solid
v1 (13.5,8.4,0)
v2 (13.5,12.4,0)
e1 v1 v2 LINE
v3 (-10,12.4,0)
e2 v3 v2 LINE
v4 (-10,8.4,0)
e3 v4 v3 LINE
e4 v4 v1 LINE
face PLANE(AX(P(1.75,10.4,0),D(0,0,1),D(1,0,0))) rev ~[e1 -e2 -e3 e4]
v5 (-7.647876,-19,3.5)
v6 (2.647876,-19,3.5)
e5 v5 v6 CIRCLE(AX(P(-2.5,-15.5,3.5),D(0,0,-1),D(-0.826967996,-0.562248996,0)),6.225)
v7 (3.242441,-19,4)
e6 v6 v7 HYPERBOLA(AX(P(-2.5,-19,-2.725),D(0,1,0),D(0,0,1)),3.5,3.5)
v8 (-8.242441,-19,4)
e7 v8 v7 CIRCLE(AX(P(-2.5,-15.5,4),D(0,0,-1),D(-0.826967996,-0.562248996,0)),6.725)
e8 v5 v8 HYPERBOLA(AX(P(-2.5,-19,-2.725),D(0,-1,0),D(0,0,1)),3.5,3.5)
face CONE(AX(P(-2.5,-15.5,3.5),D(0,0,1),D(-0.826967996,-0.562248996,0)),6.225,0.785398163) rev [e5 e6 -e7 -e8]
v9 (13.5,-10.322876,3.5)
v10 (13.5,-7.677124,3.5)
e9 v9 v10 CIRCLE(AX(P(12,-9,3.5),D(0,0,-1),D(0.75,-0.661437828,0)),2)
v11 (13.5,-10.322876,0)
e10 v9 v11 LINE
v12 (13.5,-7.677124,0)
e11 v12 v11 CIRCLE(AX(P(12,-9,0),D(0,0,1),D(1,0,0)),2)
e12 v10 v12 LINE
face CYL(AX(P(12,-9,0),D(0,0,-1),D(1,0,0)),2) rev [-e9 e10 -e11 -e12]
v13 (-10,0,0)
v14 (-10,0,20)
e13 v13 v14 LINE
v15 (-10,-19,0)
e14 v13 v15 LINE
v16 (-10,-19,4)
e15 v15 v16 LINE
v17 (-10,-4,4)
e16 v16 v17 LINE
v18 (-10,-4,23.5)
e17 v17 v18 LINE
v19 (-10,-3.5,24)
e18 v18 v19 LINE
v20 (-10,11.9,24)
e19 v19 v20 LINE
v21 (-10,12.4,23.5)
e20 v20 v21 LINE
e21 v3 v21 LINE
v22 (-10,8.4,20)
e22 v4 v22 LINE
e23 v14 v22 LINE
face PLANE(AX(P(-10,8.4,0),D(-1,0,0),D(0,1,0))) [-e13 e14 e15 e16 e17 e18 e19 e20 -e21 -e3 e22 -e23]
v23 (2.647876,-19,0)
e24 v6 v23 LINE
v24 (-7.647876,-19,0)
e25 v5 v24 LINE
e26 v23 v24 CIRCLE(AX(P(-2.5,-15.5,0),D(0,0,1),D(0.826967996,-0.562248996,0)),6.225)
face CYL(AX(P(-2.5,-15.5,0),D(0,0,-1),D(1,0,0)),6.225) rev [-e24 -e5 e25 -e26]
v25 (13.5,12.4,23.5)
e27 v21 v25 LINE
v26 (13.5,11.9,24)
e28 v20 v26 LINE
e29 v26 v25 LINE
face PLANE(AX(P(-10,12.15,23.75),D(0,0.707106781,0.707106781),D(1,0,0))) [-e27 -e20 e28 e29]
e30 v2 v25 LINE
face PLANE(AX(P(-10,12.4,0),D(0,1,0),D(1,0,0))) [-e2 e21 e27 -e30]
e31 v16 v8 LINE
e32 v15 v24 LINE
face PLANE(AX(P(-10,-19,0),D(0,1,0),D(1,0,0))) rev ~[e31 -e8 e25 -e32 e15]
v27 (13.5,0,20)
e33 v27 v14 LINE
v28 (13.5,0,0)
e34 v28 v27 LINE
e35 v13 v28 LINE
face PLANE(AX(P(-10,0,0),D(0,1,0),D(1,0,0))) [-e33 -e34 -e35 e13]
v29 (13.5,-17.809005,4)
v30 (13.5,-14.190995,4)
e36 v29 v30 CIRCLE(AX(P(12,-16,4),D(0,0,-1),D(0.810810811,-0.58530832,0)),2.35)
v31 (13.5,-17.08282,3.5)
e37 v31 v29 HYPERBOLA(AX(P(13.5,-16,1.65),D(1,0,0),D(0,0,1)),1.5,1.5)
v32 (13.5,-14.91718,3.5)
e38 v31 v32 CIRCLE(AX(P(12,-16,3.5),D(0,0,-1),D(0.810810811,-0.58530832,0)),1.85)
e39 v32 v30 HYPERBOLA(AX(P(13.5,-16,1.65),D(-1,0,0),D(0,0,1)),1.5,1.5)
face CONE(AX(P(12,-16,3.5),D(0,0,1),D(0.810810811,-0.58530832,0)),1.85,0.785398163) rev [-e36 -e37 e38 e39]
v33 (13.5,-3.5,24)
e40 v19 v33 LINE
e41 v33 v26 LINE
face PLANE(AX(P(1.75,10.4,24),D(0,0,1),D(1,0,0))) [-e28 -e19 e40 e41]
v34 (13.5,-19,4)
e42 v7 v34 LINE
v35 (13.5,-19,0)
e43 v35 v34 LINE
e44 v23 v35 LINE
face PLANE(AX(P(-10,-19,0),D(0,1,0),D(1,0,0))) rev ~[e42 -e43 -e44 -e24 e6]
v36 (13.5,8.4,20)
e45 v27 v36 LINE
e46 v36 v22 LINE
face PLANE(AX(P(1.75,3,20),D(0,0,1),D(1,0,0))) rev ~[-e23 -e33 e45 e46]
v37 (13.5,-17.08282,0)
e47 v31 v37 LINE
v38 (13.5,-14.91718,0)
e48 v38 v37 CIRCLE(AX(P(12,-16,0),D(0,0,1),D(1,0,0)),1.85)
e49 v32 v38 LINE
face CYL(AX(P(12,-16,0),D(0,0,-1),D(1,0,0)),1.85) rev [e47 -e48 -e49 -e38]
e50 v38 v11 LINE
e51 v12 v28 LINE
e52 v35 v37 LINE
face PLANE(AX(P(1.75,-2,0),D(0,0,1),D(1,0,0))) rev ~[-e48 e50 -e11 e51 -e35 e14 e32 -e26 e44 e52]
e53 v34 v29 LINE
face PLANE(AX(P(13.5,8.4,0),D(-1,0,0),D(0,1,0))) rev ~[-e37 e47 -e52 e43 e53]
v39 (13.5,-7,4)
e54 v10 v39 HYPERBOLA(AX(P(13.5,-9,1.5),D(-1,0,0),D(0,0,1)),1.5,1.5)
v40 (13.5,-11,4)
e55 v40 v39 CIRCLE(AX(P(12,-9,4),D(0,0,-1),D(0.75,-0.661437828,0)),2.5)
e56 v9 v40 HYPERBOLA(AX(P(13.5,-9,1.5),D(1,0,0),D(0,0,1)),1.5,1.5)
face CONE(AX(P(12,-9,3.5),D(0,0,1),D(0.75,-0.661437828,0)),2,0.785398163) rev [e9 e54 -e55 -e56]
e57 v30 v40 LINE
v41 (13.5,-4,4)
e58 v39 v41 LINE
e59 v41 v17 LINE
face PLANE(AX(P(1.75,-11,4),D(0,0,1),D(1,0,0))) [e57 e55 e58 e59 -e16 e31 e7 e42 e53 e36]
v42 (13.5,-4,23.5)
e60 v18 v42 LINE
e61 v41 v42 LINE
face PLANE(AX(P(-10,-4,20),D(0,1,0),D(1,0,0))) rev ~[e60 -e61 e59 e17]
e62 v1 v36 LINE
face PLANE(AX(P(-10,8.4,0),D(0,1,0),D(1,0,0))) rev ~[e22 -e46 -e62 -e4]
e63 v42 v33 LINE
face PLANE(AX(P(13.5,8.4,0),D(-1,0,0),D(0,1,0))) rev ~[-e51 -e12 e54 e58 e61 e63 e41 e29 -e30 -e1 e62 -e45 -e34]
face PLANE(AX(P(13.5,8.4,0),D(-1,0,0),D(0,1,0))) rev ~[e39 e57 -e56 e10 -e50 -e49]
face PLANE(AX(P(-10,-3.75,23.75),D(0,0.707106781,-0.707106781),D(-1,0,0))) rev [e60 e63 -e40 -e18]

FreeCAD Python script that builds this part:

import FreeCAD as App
import Part
import Sketcher

V = App.Vector
Q = App.Units.Quantity


def edges_at(feature, points):
    """Names of the edges that pass closest to the given points."""
    edges = feature.Shape.Edges
    near = lambda p: min(range(len(edges)), key=lambda i: edges[i].distToShape(Part.Vertex(*p))[0])
    return sorted({f"Edge{near(p) + 1}" for p in points})


def add_polygon(sketch, points):
    """Adds a closed chain of lines whose ends are joined by coincident constraints."""
    first, n = sketch.GeometryCount, len(points)
    for a, b in zip(points, points[1:] + points[:1]):
        sketch.addGeometry(Part.LineSegment(App.Vector(*a, 0), App.Vector(*b, 0)), False)
    for i in range(n):
        sketch.addConstraint(Sketcher.Constraint("Coincident", first + i, 2, first + (i + 1) % n, 1))

doc = App.newDocument("Part")
body = doc.addObject("PartDesign::Body", "Body")

sketch1 = body.newObject("Sketcher::SketchObject", "Sketch")
sketch1.AttachmentSupport = (doc.getObject("XY_Plane"), [""])
sketch1.MapMode = "FlatFace"
add_polygon(sketch1, [(-10, 8), (-10, 0), (21, 0), (21, 8)])
sketch1.addConstraint([
    Sketcher.Constraint("Vertical", 0),
    Sketcher.Constraint("Horizontal", 1),
    Sketcher.Constraint("Vertical", 2),
    Sketcher.Constraint("Horizontal", 3),
    Sketcher.Constraint("PointOnObject", 0, 2, -1),
    Sketcher.Constraint("DistanceX", 1, 1, 1, 2, Q("31 mm")),
    Sketcher.Constraint("DistanceY", 0, 2, 0, 1, Q("8.4 mm")),
    Sketcher.Constraint("DistanceX", 0, 2, -1, 1, Q("10 mm")),
])
pad1 = body.newObject("PartDesign::Pad", "Pad")
pad1.Profile = sketch1
pad1.Length = 20
body2 = doc.addObject("PartDesign::Body", "Body001")

sketch2 = body2.newObject("Sketcher::SketchObject", "Sketch001")
sketch2.AttachmentSupport = (doc.getObject("XY_Plane001"), [""])
sketch2.MapMode = "FlatFace"
sketch2.addGeometry(Part.Circle(V(-2, -16, 0), V(0, 0, 1), 6), False)
sketch2.addConstraint([
    Sketcher.Constraint("Diameter", 0, Q("12.45 mm")),
    Sketcher.Constraint("DistanceX", 0, 3, -1, 1, Q("2.5 mm")),
    Sketcher.Constraint("DistanceY", 0, 3, -1, 1, Q("15.5 mm")),
])
pad2 = body2.newObject("PartDesign::Pad", "Pad001")
pad2.Profile = sketch2
pad2.Length = 10
body3 = doc.addObject("PartDesign::Body", "Body002")

sketch3 = body3.newObject("Sketcher::SketchObject", "Sketch002")
sketch3.AttachmentSupport = (doc.getObject("XY_Plane002"), [""])
sketch3.MapMode = "FlatFace"
sketch3.addGeometry(Part.Circle(V(12, -9, 0), V(0, 0, 1), 2), False)
sketch3.addConstraint([
    Sketcher.Constraint("Diameter", 0, Q("4 mm")),
    Sketcher.Constraint("DistanceX", -1, 1, 0, 3, Q("12 mm")),
    Sketcher.Constraint("DistanceY", 0, 3, -1, 1, Q("9 mm")),
])
pad3 = body3.newObject("PartDesign::Pad", "Pad002")
pad3.Profile = sketch3
pad3.Length = 10
body4 = doc.addObject("PartDesign::Body", "Body003")

sketch4 = body4.newObject("Sketcher::SketchObject", "Sketch003")
sketch4.AttachmentSupport = (doc.getObject("XY_Plane003"), [""])
sketch4.MapMode = "FlatFace"
sketch4.addGeometry(Part.Circle(V(12, -16, 0), V(0, 0, 1), 1.9), False)
sketch4.addConstraint([
    Sketcher.Constraint("Diameter", 0, Q("3.7 mm")),
    Sketcher.Constraint("DistanceX", -1, 1, 0, 3, Q("12 mm")),
    Sketcher.Constraint("DistanceY", 0, 3, -1, 1, Q("16 mm")),
])
pad4 = body4.newObject("PartDesign::Pad", "Pad003")
pad4.Profile = sketch4
pad4.Length = 10
body5 = doc.addObject("PartDesign::Body", "Body004")

sketch5 = body5.newObject("Sketcher::SketchObject", "Sketch004")
sketch5.AttachmentSupport = (doc.getObject("XY_Plane004"), [""])
sketch5.MapMode = "FlatFace"
add_polygon(sketch5, [(-10, 12.4), (-10, 8.4), (13.5, 8.4), (13.5, 12.4)])
sketch5.addConstraint([
    Sketcher.Constraint("Vertical", 0),
    Sketcher.Constraint("Horizontal", 1),
    Sketcher.Constraint("Vertical", 2),
    Sketcher.Constraint("Horizontal", 3),
    Sketcher.Constraint("DistanceY", 0, 2, 0, 1, Q("4 mm")),
    Sketcher.Constraint("DistanceX", 1, 1, 1, 2, Q("23.5 mm")),
    Sketcher.Constraint("DistanceX", 0, 2, -1, 1, Q("10 mm")),
    Sketcher.Constraint("DistanceY", -1, 1, 0, 2, Q("8.4 mm")),
])
pad5 = body5.newObject("PartDesign::Pad", "Pad004")
pad5.Profile = sketch5
pad5.Length = 24
body6 = doc.addObject("PartDesign::Body", "Body005")

sketch6 = body6.newObject("Sketcher::SketchObject", "Sketch005")
sketch6.AttachmentSupport = (doc.getObject("XY_Plane005"), [""])
sketch6.MapMode = "FlatFace"
add_polygon(sketch6, [(-10, -3), (-10, -19), (14, -19), (14, -3)])
sketch6.addConstraint([
    Sketcher.Constraint("Vertical", 0),
    Sketcher.Constraint("Horizontal", 1),
    Sketcher.Constraint("Vertical", 2),
    Sketcher.Constraint("Horizontal", 3),
    Sketcher.Constraint("DistanceY", 0, 2, 0, 1, Q("16 mm")),
    Sketcher.Constraint("DistanceX", 1, 1, 1, 2, Q("23.5 mm")),
    Sketcher.Constraint("DistanceX", 0, 2, -1, 1, Q("10 mm")),
    Sketcher.Constraint("DistanceY", 0, 2, -1, 1, Q("19 mm")),
])
pad6 = body6.newObject("PartDesign::Pad", "Pad005")
pad6.Profile = sketch6
pad6.Length = 4
body7 = doc.addObject("PartDesign::Body", "Body006")

sketch7 = body7.newObject("Sketcher::SketchObject", "Sketch006")
sketch7.AttachmentSupport = (doc.getObject("XY_Plane006"), [""])
sketch7.MapMode = "FlatFace"
add_polygon(sketch7, [(-10, 0), (-10, -4), (13.5, -4), (13.5, 0)])
sketch7.addConstraint([
    Sketcher.Constraint("Vertical", 0),
    Sketcher.Constraint("Horizontal", 1),
    Sketcher.Constraint("Vertical", 2),
    Sketcher.Constraint("Horizontal", 3),
    Sketcher.Constraint("PointOnObject", 2, 2, -1),
    Sketcher.Constraint("DistanceY", 0, 2, 0, 1, Q("4 mm")),
    Sketcher.Constraint("DistanceX", 1, 1, 1, 2, Q("23.5 mm")),
    Sketcher.Constraint("DistanceX", 0, 2, -1, 1, Q("10 mm")),
])
pad7 = body7.newObject("PartDesign::Pad", "Pad006")
pad7.Profile = sketch7
pad7.Length = 24
body8 = doc.addObject("PartDesign::Body", "Body007")
body8.AllowCompound = True

sketch8 = body8.newObject("Sketcher::SketchObject", "Sketch007")
sketch8.AttachmentSupport = (doc.getObject("XY_Plane007"), [""])
sketch8.MapMode = "FlatFace"
sketch8.AttachmentOffset = App.Placement(V(0, 0, 20), App.Rotation())
add_polygon(sketch8, [(-10, 10), (-10, -4), (14, -4), (14, 10)])
sketch8.addConstraint([
    Sketcher.Constraint("Vertical", 0),
    Sketcher.Constraint("Horizontal", 1),
    Sketcher.Constraint("Vertical", 2),
    Sketcher.Constraint("Horizontal", 3),
    Sketcher.Constraint("DistanceY", 0, 2, 0, 1, Q("14 mm")),
    Sketcher.Constraint("DistanceX", 1, 1, 1, 2, Q("23.5 mm")),
    Sketcher.Constraint("DistanceX", 0, 2, -1, 1, Q("10 mm")),
    Sketcher.Constraint("DistanceY", 0, 2, -1, 1, Q("4 mm")),
])
pad8 = body8.newObject("PartDesign::Pad", "Pad007")
pad8.Profile = sketch8
pad8.Length = 4
doc.recompute()

boolean = body8.newObject("PartDesign::Boolean", "Boolean")
boolean.Type = "Fuse"
boolean.addObjects([body5])
doc.recompute()

boolean2 = body8.newObject("PartDesign::Boolean", "Boolean001")
boolean2.Type = "Fuse"
boolean2.addObjects([body6])
doc.recompute()

boolean3 = body8.newObject("PartDesign::Boolean", "Boolean002")
boolean3.Type = "Fuse"
boolean3.addObjects([body7])
doc.recompute()

boolean4 = body8.newObject("PartDesign::Boolean", "Boolean003")
boolean4.Type = "Cut"
boolean4.addObjects([body4])
doc.recompute()

boolean5 = body8.newObject("PartDesign::Boolean", "Boolean004")
boolean5.Type = "Cut"
boolean5.addObjects([body3])
doc.recompute()

boolean6 = body8.newObject("PartDesign::Boolean", "Boolean005")
boolean6.Type = "Cut"
boolean6.addObjects([body2])
doc.recompute()

boolean7 = body8.newObject("PartDesign::Boolean", "Boolean006")
boolean7.Type = "Cut"
boolean7.addObjects([body])
doc.recompute()

chamfer = body8.newObject("PartDesign::Chamfer", "Chamfer")
chamfer.Base = (boolean7, edges_at(boolean7, [
    (10, -9, 4),
    (10.15, -16, 4),
    (-2.5, -9.275, 4),
    (-2.5, -9.275, 4),
]))
chamfer.Size = 0.5
doc.recompute()

chamfer2 = body8.newObject("PartDesign::Chamfer", "Chamfer001")
chamfer2.Base = (chamfer, edges_at(chamfer, [(1.75, -4, 24), (1.75, 12.4, 24)]))
chamfer2.Size = 0.5

doc.recompute()
